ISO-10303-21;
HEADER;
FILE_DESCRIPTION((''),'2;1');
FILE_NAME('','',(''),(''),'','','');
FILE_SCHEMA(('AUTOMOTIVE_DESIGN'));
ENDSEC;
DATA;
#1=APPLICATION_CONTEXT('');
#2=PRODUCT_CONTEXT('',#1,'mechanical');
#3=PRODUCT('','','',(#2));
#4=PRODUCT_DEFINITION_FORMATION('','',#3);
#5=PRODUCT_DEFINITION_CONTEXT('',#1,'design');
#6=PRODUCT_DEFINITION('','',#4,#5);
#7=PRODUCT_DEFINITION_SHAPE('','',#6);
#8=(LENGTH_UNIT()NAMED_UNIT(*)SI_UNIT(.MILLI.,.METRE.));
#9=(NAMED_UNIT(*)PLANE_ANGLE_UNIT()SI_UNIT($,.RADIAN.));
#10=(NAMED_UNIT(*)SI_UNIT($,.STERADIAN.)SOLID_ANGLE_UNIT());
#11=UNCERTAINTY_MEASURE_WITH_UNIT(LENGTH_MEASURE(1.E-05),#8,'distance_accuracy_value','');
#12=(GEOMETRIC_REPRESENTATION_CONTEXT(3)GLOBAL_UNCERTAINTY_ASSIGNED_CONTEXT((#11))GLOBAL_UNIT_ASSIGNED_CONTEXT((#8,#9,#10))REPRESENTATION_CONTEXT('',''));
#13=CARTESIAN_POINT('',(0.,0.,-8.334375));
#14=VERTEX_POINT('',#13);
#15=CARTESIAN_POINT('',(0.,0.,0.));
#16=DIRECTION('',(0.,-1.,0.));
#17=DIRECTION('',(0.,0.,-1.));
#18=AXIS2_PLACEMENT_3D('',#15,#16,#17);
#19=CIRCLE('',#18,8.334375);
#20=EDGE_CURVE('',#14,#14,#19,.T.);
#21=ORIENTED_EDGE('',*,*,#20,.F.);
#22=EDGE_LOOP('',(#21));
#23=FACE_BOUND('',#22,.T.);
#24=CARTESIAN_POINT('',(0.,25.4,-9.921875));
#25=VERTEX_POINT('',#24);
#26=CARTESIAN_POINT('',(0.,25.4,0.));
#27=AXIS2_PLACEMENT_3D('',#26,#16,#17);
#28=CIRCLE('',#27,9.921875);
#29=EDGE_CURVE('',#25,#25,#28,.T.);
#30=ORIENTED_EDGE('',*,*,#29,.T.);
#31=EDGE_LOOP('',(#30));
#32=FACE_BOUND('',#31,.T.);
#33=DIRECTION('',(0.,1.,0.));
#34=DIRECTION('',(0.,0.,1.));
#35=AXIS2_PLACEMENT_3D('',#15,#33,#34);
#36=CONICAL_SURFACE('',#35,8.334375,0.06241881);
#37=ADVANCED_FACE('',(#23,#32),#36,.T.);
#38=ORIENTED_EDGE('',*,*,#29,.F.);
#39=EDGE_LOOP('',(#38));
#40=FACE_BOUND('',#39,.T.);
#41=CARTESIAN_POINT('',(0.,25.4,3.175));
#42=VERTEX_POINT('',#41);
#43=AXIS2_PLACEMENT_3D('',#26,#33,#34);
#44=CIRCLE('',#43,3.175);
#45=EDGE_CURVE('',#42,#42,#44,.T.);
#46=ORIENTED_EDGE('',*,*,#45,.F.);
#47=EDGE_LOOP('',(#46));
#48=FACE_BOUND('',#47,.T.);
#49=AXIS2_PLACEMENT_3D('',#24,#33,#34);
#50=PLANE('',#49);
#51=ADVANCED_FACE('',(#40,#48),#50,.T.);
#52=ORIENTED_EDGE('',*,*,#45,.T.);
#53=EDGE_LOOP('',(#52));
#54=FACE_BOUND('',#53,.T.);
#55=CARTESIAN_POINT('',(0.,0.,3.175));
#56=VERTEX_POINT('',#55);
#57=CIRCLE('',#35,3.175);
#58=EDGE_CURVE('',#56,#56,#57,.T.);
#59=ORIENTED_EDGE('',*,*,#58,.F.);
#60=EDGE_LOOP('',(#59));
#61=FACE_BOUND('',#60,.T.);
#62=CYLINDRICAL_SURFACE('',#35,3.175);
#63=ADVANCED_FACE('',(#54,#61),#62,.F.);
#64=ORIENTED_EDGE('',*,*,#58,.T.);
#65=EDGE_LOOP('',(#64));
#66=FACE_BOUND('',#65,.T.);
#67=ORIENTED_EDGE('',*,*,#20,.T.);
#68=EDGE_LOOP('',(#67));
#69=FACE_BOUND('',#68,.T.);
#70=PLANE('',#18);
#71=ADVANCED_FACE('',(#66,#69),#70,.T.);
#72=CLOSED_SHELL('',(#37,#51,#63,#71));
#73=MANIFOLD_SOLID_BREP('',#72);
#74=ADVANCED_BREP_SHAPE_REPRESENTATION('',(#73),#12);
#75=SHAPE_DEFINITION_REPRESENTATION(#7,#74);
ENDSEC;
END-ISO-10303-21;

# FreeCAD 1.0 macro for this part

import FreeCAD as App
import Part
import Sketcher
from FreeCAD import Vector
Q = App.Units.Quantity


def add_polygon(sketch, points):
    """Adds a closed chain of lines whose ends are joined by coincident constraints."""
    first, n = sketch.GeometryCount, len(points)
    for a, b in zip(points, points[1:] + points[:1]):
        sketch.addGeometry(Part.LineSegment(App.Vector(*a, 0), App.Vector(*b, 0)), False)
    for i in range(n):
        sketch.addConstraint(Sketcher.Constraint("Coincident", first + i, 2, first + (i + 1) % n, 1))

doc = App.newDocument("Part")
params = doc.addObject("Spreadsheet::Sheet", "Params")
for row, (alias, value) in enumerate([
    ("sketch1_width", "1 in"),
    ("sketch1_height", "0.328125 in"),
    ("sketch1_height2", "0.390625 in"),
    ("revolution_angle", "360 deg"),
    ("sketch2_diameter", "0.25 in"),
], start=1):
    params.set(f"A{row}", alias)
    params.set(f"B{row}", "=" + value)
    params.setAlias(f"B{row}", alias)

body = doc.addObject("PartDesign::Body", "Body")

# Sketch on YZ plane
sketch1 = doc.addObject("Sketcher::SketchObject", "Sketch")
body.addObject(sketch1)
sketch1.AttachmentSupport = (doc.YZ_Plane, [""])
sketch1.MapMode = "FlatFace"
add_polygon(sketch1, [(0, 0), (0, -8), (25, -10), (25, 0)])  # lines 0-3
sketch1.addConstraint(Sketcher.Constraint("Vertical", 0))
sketch1.addConstraint(Sketcher.Constraint("Vertical", 2))
sketch1.addConstraint(Sketcher.Constraint("Horizontal", 3))
sketch1.addConstraint(Sketcher.Constraint("Coincident", 3, 2, -1, 1))
sketch1.addConstraint(Sketcher.Constraint("DistanceX", 3, 2, 3, 1, Q("1 in")))
sketch1.addConstraint(Sketcher.Constraint("DistanceY", 0, 2, 0, 1, Q("0.328125 in")))
sketch1.addConstraint(Sketcher.Constraint("DistanceY", 2, 1, 2, 2, Q("0.390625 in")))
sketch1.setExpression("Constraints[8]", "Params.sketch1_width")
sketch1.setExpression("Constraints[9]", "Params.sketch1_height")
sketch1.setExpression("Constraints[10]", "Params.sketch1_height2")
revolution = doc.addObject("PartDesign::Revolution", "Revolution")
body.addObject(revolution)
revolution.Profile = sketch1
revolution.ReferenceAxis = (sketch1, ["H_Axis"])
revolution.setExpression("Angle", "Params.revolution_angle")

# Sketch on XZ plane
sketch2 = doc.addObject("Sketcher::SketchObject", "Sketch001")
body.addObject(sketch2)
sketch2.AttachmentSupport = (doc.XZ_Plane, [""])
sketch2.MapMode = "FlatFace"
sketch2.AttachmentOffset = App.Placement(Vector(0, 0, -1 * 25.4), App.Rotation())
sketch2.addGeometry(Part.Circle(Vector(0, 0, 0), Vector(0, 0, 1), 3.2), False)
sketch2.addConstraint(Sketcher.Constraint("Coincident", 0, 3, -1, 1))
sketch2.addConstraint(Sketcher.Constraint("Diameter", 0, Q("0.25 in")))
sketch2.setExpression("Constraints[1]", "Params.sketch2_diameter")
pocket1 = doc.addObject("PartDesign::Pocket", "Pocket")
body.addObject(pocket1)
pocket1.Profile = sketch2
pocket1.Type = "ThroughAll"
pocket1.Reversed = True

doc.recompute()
